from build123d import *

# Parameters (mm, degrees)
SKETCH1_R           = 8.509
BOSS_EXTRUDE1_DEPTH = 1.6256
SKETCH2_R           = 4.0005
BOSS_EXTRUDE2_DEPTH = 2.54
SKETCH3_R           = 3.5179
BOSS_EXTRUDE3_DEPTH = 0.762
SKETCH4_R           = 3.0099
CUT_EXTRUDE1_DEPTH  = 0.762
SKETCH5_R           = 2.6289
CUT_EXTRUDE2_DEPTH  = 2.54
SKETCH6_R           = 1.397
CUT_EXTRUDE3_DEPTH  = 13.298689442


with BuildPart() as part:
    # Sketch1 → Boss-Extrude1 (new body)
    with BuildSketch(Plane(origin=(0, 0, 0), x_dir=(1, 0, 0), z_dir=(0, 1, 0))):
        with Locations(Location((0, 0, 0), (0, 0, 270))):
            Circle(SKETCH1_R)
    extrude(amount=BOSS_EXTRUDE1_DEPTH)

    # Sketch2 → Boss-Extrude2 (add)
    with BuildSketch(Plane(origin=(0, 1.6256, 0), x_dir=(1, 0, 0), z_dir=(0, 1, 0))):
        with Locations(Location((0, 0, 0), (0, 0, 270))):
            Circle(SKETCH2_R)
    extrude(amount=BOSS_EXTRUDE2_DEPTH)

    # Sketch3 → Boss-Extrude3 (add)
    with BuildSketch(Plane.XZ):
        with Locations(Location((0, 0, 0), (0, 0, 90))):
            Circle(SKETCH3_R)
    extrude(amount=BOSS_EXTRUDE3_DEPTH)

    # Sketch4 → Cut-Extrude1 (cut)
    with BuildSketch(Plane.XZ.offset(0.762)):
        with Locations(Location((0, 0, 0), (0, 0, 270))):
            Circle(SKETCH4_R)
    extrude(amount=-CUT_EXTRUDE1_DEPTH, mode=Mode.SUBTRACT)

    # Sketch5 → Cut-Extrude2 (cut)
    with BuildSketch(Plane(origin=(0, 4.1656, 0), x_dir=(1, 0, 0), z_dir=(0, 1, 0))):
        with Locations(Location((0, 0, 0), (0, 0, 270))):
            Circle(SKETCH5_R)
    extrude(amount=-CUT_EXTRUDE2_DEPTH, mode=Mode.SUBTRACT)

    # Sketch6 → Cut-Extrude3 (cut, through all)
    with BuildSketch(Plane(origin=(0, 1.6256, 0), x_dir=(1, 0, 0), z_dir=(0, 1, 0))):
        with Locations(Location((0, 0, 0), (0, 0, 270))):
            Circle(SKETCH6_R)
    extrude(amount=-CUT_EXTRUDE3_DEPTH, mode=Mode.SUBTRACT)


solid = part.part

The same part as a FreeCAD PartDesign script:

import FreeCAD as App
import Part
import Sketcher
from FreeCAD import Vector
Q = App.Units.Quantity

doc = App.newDocument("Part")
body = doc.addObject("PartDesign::Body", "Body")

# Sketch on XZ plane
sketch1 = body.newObject("Sketcher::SketchObject", "Sketch")
sketch1.AttachmentSupport = (doc.getObject("XZ_Plane"), [""])
sketch1.MapMode = "FlatFace"
sketch1.addGeometry(Part.Circle(Vector(0, 0, 0), Vector(0, 0, 1), 9), False)
sketch1.addConstraint(Sketcher.Constraint("Coincident", 0, 3, -1, 1))
sketch1.addConstraint(Sketcher.Constraint("Diameter", 0, Q("0.67 in")))
pad1 = body.newObject("PartDesign::Pad", "Pad")
pad1.Profile = sketch1
pad1.Length = Q("0.064 in")
pad1.Reversed = True

# Sketch on XZ plane
sketch2 = body.newObject("Sketcher::SketchObject", "Sketch001")
sketch2.AttachmentSupport = (doc.getObject("XZ_Plane"), [""])
sketch2.MapMode = "FlatFace"
sketch2.AttachmentOffset = App.Placement(Vector(0, 0, -0.064 * 25.4), App.Rotation())
sketch2.addGeometry(Part.Circle(Vector(0, 0, 0), Vector(0, 0, 1), 4), False)
sketch2.addConstraint(Sketcher.Constraint("Coincident", 0, 3, -1, 1))
sketch2.addConstraint(Sketcher.Constraint("Diameter", 0, Q("0.315 in")))
pad2 = body.newObject("PartDesign::Pad", "Pad001")
pad2.Profile = sketch2
pad2.Length = Q("0.1 in")
pad2.Reversed = True

# Sketch on XZ plane
sketch3 = body.newObject("Sketcher::SketchObject", "Sketch002")
sketch3.AttachmentSupport = (doc.getObject("XZ_Plane"), [""])
sketch3.MapMode = "FlatFace"
sketch3.addGeometry(Part.Circle(Vector(0, 0, 0), Vector(0, 0, 1), 3.5), False)
sketch3.addConstraint(Sketcher.Constraint("Coincident", 0, 3, -1, 1))
sketch3.addConstraint(Sketcher.Constraint("Diameter", 0, Q("0.277 in")))
pad3 = body.newObject("PartDesign::Pad", "Pad002")
pad3.Profile = sketch3
pad3.Length = Q("0.03 in")

# Sketch on XZ plane
sketch4 = body.newObject("Sketcher::SketchObject", "Sketch003")
sketch4.AttachmentSupport = (doc.getObject("XZ_Plane"), [""])
sketch4.MapMode = "FlatFace"
sketch4.AttachmentOffset = App.Placement(Vector(0, 0, 0.03 * 25.4), App.Rotation())
sketch4.addGeometry(Part.Circle(Vector(0, 0, 0), Vector(0, 0, 1), 3), False)
sketch4.addConstraint(Sketcher.Constraint("Coincident", 0, 3, -1, 1))
sketch4.addConstraint(Sketcher.Constraint("Diameter", 0, Q("0.237 in")))
pocket1 = body.newObject("PartDesign::Pocket", "Pocket")
pocket1.Profile = sketch4
pocket1.Length = Q("0.03 in")

# Sketch on XZ plane
sketch5 = body.newObject("Sketcher::SketchObject", "Sketch004")
sketch5.AttachmentSupport = (doc.getObject("XZ_Plane"), [""])
sketch5.MapMode = "FlatFace"
sketch5.AttachmentOffset = App.Placement(Vector(0, 0, -0.164 * 25.4), App.Rotation())
sketch5.addGeometry(Part.Circle(Vector(0, 0, 0), Vector(0, 0, 1), 2.6), False)
sketch5.addConstraint(Sketcher.Constraint("Coincident", 0, 3, -1, 1))
sketch5.addConstraint(Sketcher.Constraint("Diameter", 0, Q("0.207 in")))
pocket2 = body.newObject("PartDesign::Pocket", "Pocket001")
pocket2.Profile = sketch5
pocket2.Length = Q("0.1 in")
pocket2.Reversed = True

# Sketch on XZ plane
sketch6 = body.newObject("Sketcher::SketchObject", "Sketch005")
sketch6.AttachmentSupport = (doc.getObject("XZ_Plane"), [""])
sketch6.MapMode = "FlatFace"
sketch6.AttachmentOffset = App.Placement(Vector(0, 0, -0.064 * 25.4), App.Rotation())
sketch6.addGeometry(Part.Circle(Vector(0, 0, 0), Vector(0, 0, 1), 1.4), False)
sketch6.addConstraint(Sketcher.Constraint("Coincident", 0, 3, -1, 1))
sketch6.addConstraint(Sketcher.Constraint("Diameter", 0, Q("0.11 in")))
pocket3 = body.newObject("PartDesign::Pocket", "Pocket002")
pocket3.Profile = sketch6
pocket3.Type = "ThroughAll"
pocket3.Reversed = True

doc.recompute()
